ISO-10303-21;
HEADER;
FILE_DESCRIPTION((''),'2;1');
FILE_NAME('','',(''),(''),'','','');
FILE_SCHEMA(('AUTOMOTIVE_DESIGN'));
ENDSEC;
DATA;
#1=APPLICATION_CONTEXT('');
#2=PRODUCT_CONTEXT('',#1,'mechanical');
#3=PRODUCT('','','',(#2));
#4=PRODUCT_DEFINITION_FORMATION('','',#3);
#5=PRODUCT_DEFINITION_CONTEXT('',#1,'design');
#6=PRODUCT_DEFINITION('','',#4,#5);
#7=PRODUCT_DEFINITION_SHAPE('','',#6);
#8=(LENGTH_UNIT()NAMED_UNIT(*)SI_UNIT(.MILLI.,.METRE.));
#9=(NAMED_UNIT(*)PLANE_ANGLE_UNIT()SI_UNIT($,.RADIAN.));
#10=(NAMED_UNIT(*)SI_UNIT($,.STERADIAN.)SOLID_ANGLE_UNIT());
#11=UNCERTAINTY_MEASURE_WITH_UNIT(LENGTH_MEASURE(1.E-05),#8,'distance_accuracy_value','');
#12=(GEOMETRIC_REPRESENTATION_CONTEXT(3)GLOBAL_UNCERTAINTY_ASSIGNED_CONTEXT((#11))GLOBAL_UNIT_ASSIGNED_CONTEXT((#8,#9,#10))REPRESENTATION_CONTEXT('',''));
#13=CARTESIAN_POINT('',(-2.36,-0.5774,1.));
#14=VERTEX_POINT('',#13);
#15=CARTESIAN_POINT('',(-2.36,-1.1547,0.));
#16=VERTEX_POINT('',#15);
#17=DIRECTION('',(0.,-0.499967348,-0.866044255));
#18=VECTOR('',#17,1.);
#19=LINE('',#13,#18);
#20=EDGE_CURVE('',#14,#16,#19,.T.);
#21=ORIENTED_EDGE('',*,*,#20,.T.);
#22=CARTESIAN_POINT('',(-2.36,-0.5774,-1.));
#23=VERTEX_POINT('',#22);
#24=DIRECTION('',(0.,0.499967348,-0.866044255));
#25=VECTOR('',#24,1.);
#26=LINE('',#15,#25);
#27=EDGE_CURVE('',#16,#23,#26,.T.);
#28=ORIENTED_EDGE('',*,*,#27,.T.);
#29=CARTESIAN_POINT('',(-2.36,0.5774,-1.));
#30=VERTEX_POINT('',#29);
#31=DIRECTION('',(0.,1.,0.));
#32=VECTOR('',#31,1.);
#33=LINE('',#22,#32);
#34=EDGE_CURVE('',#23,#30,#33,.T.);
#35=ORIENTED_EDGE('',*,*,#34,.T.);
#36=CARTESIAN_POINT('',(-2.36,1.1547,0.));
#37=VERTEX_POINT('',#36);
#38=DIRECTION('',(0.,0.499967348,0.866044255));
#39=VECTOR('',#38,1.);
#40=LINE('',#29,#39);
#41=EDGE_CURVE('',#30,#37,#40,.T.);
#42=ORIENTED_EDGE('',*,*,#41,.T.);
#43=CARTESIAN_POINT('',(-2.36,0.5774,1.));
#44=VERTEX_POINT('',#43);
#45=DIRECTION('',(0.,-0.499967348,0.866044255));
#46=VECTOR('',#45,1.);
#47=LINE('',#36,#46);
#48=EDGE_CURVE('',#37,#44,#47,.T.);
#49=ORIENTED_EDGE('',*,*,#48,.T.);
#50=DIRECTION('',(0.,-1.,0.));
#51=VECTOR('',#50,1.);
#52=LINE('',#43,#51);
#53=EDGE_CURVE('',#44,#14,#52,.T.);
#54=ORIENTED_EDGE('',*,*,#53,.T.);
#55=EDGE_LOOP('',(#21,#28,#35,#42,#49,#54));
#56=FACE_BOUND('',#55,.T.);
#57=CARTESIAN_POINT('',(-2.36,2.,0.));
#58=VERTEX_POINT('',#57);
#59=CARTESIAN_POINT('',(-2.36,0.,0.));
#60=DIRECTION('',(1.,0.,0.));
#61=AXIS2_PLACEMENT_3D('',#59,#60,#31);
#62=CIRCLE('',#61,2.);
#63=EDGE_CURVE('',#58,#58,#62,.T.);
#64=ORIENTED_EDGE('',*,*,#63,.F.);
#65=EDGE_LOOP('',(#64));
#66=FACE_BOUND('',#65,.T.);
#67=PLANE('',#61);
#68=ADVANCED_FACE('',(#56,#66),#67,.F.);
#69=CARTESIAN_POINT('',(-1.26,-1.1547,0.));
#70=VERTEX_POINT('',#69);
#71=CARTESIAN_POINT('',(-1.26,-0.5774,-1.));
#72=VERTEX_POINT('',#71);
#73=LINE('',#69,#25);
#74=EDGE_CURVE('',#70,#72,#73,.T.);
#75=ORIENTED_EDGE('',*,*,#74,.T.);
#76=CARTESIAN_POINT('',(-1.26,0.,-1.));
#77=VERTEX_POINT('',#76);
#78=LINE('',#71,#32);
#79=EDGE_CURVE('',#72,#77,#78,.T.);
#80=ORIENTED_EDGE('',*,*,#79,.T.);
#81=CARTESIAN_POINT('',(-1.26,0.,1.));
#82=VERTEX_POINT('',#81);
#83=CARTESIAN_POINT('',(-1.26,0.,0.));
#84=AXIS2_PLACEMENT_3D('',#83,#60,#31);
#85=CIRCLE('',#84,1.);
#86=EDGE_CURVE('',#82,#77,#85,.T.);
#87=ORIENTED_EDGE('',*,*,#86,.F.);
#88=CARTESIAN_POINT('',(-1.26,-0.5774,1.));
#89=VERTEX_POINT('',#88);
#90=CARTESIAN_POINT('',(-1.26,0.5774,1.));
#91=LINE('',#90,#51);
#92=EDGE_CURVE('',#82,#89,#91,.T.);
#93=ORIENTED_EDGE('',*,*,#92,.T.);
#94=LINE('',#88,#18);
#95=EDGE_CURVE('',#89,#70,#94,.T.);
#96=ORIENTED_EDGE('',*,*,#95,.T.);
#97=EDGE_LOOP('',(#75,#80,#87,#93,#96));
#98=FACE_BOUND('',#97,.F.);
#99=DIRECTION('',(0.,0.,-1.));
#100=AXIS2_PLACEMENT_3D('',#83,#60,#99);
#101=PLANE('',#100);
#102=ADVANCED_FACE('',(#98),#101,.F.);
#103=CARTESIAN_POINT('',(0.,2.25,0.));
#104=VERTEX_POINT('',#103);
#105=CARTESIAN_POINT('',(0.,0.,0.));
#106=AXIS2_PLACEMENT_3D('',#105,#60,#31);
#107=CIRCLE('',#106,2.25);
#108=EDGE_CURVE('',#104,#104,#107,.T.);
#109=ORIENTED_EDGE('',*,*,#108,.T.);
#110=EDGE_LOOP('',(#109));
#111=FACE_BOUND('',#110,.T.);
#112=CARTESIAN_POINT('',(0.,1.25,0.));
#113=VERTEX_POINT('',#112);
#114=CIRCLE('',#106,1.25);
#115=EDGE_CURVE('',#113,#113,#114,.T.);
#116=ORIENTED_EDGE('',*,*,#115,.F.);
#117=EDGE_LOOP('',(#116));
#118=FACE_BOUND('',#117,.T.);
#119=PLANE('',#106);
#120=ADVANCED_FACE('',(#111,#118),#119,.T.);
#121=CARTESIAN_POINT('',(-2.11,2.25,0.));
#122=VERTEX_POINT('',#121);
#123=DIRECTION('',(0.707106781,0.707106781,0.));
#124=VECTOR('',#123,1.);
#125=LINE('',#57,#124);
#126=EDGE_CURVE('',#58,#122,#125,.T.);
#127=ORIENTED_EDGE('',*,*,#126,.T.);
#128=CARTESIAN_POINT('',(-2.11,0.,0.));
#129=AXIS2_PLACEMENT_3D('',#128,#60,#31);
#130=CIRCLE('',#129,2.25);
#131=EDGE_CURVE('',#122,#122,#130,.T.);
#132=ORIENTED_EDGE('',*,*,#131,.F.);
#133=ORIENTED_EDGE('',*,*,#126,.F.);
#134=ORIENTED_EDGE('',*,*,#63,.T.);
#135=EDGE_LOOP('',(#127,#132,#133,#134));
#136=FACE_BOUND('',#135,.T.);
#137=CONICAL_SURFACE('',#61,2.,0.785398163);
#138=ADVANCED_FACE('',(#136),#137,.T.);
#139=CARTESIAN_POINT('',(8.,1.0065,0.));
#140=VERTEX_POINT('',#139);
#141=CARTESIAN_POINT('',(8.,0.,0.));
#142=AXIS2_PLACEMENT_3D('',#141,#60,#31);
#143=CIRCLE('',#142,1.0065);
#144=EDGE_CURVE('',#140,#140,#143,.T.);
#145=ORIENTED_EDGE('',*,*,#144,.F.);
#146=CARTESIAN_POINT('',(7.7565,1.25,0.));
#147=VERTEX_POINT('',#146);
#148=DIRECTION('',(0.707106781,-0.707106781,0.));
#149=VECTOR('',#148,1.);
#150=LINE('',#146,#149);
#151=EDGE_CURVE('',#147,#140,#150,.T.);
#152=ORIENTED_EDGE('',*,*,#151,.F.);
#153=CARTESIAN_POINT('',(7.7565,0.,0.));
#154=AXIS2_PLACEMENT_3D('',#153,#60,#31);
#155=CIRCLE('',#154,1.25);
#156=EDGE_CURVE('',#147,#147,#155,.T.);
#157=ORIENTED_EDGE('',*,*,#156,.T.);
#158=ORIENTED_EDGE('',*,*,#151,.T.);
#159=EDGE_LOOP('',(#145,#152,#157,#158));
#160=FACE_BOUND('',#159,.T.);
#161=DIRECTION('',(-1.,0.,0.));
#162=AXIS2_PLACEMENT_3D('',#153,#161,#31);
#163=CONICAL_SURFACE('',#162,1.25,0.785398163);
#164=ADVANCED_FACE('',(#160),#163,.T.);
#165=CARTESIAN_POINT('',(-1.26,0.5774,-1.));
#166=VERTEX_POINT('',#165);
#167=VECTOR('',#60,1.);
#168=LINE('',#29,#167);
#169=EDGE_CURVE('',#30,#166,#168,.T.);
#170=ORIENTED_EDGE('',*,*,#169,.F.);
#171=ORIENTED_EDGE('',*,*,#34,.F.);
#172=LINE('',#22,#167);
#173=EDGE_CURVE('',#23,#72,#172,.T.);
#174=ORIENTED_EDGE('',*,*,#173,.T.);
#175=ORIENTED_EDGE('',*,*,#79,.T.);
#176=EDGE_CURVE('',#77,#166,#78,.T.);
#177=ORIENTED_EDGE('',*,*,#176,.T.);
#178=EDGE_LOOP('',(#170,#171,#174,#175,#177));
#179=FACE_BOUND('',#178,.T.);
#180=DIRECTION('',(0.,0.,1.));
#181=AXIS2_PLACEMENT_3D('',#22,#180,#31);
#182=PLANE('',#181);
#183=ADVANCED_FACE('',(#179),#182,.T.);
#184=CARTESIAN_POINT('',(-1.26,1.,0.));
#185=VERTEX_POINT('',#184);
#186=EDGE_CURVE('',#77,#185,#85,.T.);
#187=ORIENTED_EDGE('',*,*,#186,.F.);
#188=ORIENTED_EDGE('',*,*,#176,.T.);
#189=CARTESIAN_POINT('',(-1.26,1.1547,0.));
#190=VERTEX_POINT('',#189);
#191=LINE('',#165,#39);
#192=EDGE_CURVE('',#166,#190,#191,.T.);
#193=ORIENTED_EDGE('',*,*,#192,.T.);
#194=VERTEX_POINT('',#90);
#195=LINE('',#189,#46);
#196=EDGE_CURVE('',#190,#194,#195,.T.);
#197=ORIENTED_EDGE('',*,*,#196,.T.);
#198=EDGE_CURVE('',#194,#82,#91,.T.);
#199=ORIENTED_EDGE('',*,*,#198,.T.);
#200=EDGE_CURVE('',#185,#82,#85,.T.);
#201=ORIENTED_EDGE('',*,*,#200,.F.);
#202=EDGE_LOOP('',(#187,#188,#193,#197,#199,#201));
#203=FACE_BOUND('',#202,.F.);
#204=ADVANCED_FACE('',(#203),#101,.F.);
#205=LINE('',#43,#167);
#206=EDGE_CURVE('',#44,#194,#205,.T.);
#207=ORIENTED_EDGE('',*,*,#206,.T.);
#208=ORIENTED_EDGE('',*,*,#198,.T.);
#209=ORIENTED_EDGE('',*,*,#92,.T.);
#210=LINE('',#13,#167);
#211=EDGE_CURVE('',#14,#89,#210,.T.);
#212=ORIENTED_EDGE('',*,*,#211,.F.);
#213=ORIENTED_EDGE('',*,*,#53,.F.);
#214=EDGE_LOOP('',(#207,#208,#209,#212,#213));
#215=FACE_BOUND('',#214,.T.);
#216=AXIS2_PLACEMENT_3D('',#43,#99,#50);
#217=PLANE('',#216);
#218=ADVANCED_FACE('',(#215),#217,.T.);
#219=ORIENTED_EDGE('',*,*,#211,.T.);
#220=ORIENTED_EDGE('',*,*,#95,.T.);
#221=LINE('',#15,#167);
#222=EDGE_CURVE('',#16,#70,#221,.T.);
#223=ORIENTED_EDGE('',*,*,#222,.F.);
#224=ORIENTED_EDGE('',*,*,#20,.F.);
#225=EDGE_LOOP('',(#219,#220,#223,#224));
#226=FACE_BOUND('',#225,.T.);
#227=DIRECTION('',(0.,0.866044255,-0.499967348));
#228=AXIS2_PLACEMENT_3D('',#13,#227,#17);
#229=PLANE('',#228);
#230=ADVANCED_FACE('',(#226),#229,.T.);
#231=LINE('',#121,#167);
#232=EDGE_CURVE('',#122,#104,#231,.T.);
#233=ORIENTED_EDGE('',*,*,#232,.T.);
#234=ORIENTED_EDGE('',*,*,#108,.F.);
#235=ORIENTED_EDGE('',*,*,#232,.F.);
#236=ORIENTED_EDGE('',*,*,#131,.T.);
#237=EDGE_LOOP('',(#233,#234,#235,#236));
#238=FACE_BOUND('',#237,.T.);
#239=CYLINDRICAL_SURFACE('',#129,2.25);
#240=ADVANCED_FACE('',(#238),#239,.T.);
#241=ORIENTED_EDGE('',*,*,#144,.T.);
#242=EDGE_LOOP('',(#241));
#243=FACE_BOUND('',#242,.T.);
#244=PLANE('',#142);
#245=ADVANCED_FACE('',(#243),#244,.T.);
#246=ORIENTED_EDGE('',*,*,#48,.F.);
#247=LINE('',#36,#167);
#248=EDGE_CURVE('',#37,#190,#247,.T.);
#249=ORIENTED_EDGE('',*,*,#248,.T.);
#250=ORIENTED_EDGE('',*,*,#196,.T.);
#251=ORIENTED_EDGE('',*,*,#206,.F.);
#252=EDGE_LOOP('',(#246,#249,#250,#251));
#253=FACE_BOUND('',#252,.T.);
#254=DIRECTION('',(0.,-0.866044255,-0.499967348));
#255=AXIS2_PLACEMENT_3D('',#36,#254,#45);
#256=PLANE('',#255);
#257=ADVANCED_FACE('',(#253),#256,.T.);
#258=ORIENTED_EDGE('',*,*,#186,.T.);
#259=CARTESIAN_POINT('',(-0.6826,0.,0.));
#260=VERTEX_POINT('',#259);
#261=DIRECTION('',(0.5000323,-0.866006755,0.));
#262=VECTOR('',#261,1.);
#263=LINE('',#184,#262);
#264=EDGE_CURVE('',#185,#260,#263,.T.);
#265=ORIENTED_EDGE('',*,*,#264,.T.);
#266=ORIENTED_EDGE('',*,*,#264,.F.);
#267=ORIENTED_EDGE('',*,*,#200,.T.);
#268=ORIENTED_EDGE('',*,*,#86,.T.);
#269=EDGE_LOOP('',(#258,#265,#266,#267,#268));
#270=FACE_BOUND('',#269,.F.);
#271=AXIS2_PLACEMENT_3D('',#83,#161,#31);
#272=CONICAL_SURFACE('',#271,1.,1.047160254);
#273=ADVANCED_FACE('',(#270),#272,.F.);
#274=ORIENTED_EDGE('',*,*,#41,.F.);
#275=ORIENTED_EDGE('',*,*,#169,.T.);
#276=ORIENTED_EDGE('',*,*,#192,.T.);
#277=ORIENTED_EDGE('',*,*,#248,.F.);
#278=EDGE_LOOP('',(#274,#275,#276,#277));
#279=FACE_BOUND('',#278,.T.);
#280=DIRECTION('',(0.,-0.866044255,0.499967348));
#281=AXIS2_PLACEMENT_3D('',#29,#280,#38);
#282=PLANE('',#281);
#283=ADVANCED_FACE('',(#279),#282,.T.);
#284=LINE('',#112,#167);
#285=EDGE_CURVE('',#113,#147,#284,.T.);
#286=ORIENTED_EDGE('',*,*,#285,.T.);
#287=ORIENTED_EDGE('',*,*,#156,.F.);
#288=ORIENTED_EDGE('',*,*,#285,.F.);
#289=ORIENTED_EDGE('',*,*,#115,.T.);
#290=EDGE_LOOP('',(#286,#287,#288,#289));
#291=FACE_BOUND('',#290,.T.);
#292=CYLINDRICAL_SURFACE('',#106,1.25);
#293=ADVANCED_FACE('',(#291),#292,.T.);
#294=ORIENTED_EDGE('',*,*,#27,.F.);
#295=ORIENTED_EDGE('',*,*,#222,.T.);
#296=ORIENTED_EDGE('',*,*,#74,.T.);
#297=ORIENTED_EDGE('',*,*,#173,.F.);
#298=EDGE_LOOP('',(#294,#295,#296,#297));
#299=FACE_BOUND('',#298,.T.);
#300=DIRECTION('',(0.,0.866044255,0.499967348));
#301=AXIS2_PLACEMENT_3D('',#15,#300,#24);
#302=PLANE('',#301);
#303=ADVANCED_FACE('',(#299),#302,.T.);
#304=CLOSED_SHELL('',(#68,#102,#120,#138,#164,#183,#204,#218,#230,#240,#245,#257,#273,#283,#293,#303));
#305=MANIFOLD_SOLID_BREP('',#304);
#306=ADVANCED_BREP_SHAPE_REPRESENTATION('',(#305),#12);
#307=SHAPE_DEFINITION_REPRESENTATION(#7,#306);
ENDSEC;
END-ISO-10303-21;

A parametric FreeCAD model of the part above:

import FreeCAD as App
import Part
import Sketcher
from FreeCAD import Vector
Q = App.Units.Quantity


def add_polygon(sketch, points):
    """Adds a closed chain of lines whose ends are joined by coincident constraints."""
    first, n = sketch.GeometryCount, len(points)
    for a, b in zip(points, points[1:] + points[:1]):
        sketch.addGeometry(Part.LineSegment(App.Vector(*a, 0), App.Vector(*b, 0)), False)
    for i in range(n):
        sketch.addConstraint(Sketcher.Constraint("Coincident", first + i, 2, first + (i + 1) % n, 1))

doc = App.newDocument("Part")
body = doc.addObject("PartDesign::Body", "Body")

# Sketch on XY plane
sketch1 = doc.addObject("Sketcher::SketchObject", "Sketch")
body.addObject(sketch1)
sketch1.AttachmentSupport = (doc.XY_Plane, [""])
sketch1.MapMode = "FlatFace"
add_polygon(sketch1, [(-2.36, 0), (8, 0), (8, 1.01), (7.76, 1.25), (0, 1.25), (0, 2.25), (-2.11, 2.25), (-2.36, 2)])  # lines 0-7
sketch1.addConstraint(Sketcher.Constraint("Horizontal", 0))
sketch1.addConstraint(Sketcher.Constraint("Vertical", 1))
sketch1.addConstraint(Sketcher.Constraint("Horizontal", 3))
sketch1.addConstraint(Sketcher.Constraint("Vertical", 4))
sketch1.addConstraint(Sketcher.Constraint("Horizontal", 5))
sketch1.addConstraint(Sketcher.Constraint("Vertical", 7))
sketch1.addConstraint(Sketcher.Constraint("PointOnObject", 0, 2, -1))
sketch1.addConstraint(Sketcher.Constraint("PointOnObject", 3, 2, -2))
sketch1.addConstraint(Sketcher.Constraint("Perpendicular", 2, 6))
sketch1.addConstraint(Sketcher.Constraint("DistanceY", 4, 1, 4, 2, 1.0))
sketch1.addConstraint(Sketcher.Constraint("DistanceY", 7, 2, 7, 1, 2.0))
sketch1.addConstraint(Sketcher.Constraint("Angle", 2, Q("135 deg")))
sketch1.addConstraint(Sketcher.Constraint("DistanceX", -1, 1, 0, 2, 8.0))
sketch1.addConstraint(Sketcher.Constraint("DistanceX", 0, 1, 0, 2, 10.36))
sketch1.addConstraint(Sketcher.Constraint("DistanceX", 5, 2, 5, 1, 2.11))
sketch1.addConstraint(Sketcher.Constraint("DistanceX", 3, 2, 3, 1, 7.7565))
revolution = doc.addObject("PartDesign::Revolution", "Revolution")
body.addObject(revolution)
revolution.Profile = sketch1
revolution.ReferenceAxis = (sketch1, ["H_Axis"])
revolution.Angle = 360

# Sketch on YZ plane
sketch2 = doc.addObject("Sketcher::SketchObject", "Sketch001")
body.addObject(sketch2)
sketch2.AttachmentSupport = (doc.YZ_Plane, [""])
sketch2.MapMode = "FlatFace"
sketch2.AttachmentOffset = App.Placement(Vector(0, 0, -2.36), App.Rotation())
add_polygon(sketch2, [(0.6, 1), (-0.6, 1), (-1.2, 0), (-0.6, -1), (0.6, -1), (1.2, 0)])  # lines 0-5
sketch2.addConstraint(Sketcher.Constraint("Horizontal", 0))
sketch2.addConstraint(Sketcher.Constraint("Horizontal", 3))
sketch2.addConstraint(Sketcher.Constraint("Symmetric", 0, 2, 3, 2, -1, 1))
sketch2.addConstraint(Sketcher.Constraint("Symmetric", 1, 2, 4, 2, -1, 1))
sketch2.addConstraint(Sketcher.Constraint("PointOnObject", 1, 2, -1))
sketch2.addConstraint(Sketcher.Constraint("Parallel", 2, 5))
sketch2.addConstraint(Sketcher.Constraint("Vertical", 0, 2, 2, 2))
sketch2.addConstraint(Sketcher.Constraint("DistanceY", -1, 1, 0, 2, 1.0))
sketch2.addConstraint(Sketcher.Constraint("DistanceX", 0, 2, 0, 1, 1.1548))
sketch2.addConstraint(Sketcher.Constraint("DistanceX", 1, 2, 3, 2, 1.732))
pocket1 = doc.addObject("PartDesign::Pocket", "Pocket")
body.addObject(pocket1)
pocket1.Profile = sketch2
pocket1.Length = 1.1
pocket1.Reversed = True

# Sketch on XY plane
sketch3 = doc.addObject("Sketcher::SketchObject", "Sketch002")
body.addObject(sketch3)
sketch3.AttachmentSupport = (doc.XY_Plane, [""])
sketch3.MapMode = "FlatFace"
add_polygon(sketch3, [(-1.3, 0), (-0.7, 0), (-1.3, 1)])  # lines 0-2
sketch3.addConstraint(Sketcher.Constraint("Horizontal", 0))
sketch3.addConstraint(Sketcher.Constraint("Vertical", 2))
sketch3.addConstraint(Sketcher.Constraint("PointOnObject", 0, 2, -1))
sketch3.addConstraint(Sketcher.Constraint("DistanceY", 2, 2, 2, 1, 1.0))
sketch3.addConstraint(Sketcher.Constraint("DistanceX", 1, 2, -1, 1, 1.26))
sketch3.addConstraint(Sketcher.Constraint("DistanceX", 0, 1, 0, 2, 0.5774))
groove = doc.addObject("PartDesign::Groove", "Groove")
body.addObject(groove)
groove.Profile = sketch3
groove.ReferenceAxis = (sketch3, ["H_Axis"])
groove.Angle = 360

doc.recompute()
